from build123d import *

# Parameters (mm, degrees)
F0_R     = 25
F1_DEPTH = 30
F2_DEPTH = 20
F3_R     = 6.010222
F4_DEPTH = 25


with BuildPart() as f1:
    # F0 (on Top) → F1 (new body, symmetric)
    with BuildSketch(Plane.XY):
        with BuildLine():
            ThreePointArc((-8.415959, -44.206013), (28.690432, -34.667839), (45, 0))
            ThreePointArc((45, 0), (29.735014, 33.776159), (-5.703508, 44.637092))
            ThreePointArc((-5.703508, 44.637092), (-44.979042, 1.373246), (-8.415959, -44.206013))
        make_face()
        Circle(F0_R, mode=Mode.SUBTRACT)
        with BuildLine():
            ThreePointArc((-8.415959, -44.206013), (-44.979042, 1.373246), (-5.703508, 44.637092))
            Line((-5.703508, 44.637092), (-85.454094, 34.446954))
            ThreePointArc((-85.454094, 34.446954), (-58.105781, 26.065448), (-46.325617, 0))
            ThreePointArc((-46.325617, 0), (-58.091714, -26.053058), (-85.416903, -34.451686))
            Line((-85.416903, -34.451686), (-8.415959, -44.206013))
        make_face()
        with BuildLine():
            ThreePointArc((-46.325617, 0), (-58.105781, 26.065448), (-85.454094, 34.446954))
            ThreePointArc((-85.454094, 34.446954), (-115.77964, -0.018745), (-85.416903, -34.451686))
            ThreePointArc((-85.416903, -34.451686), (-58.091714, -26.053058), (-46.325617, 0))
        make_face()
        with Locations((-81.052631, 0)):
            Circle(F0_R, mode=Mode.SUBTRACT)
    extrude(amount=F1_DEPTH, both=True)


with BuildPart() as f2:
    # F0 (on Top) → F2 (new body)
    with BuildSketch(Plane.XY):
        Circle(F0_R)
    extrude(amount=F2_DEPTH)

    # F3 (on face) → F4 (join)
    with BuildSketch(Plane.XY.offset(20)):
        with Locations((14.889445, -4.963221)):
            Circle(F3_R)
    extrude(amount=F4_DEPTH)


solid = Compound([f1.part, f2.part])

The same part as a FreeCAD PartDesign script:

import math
import FreeCAD as App
import Part
import Sketcher

V = App.Vector

doc = App.newDocument("Part")
body = doc.addObject("PartDesign::Body", "Body")

# Sketch on XY plane
sketch1 = body.newObject("Sketcher::SketchObject", "Sketch")
sketch1.AttachmentSupport = (doc.getObject("XY_Plane"), [""])
sketch1.MapMode = "FlatFace"
sketch1.addGeometry([
    Part.ArcOfCircle(Part.Circle(V(0, 0, 0), V(0, 0, 1), 45), math.radians(-101), math.radians(0)),  # 0
    Part.ArcOfCircle(Part.Circle(V(0, 0, 0), V(0, 0, 1), 45), math.radians(0), math.radians(97)),  # 1
    Part.LineSegment(V(-6, 45, 0), V(-85, 34, 0)),  # 2
    Part.ArcOfCircle(Part.Circle(V(-81, 0, 0), V(0, 0, 1), 35), math.radians(97), math.radians(263)),  # 3
    Part.LineSegment(V(-85, -34, 0), V(-8, -44, 0)),  # 4
    Part.Circle(V(-81, 0, 0), V(0, 0, 1), 25),  # 5
    Part.Circle(V(0, 0, 0), V(0, 0, 1), 25),  # 6
], False)
sketch1.addConstraint([
    Sketcher.Constraint("Tangent", 0, 2, 1, 1),
    Sketcher.Constraint("Tangent", 1, 2, 2, 1),
    Sketcher.Constraint("Tangent", 2, 2, 3, 1),
    Sketcher.Constraint("Tangent", 3, 2, 4, 1),
    Sketcher.Constraint("Coincident", 4, 2, 0, 1),
    Sketcher.Constraint("Coincident", 0, 3, -1, 1),
    Sketcher.Constraint("Coincident", 6, 3, -1, 1),
    Sketcher.Constraint("Coincident", 5, 3, 3, 3),
    Sketcher.Constraint("Equal", 0, 1),
    Sketcher.Constraint("Equal", 5, 6),
    Sketcher.Constraint("PointOnObject", 3, 3, -1),
    Sketcher.Constraint("PointOnObject", 0, 2, -1),
    Sketcher.Constraint("Diameter", 5, 50.0),
    Sketcher.Constraint("Radius", 0, 45.0),
    Sketcher.Constraint("Radius", 3, 34.727014),
    Sketcher.Constraint("DistanceX", 3, 3, -1, 1, 81.052631),
    Sketcher.Constraint("DistanceX", 4, 2, -1, 1, 8.415959),
])
pad1 = body.newObject("PartDesign::Pad", "Pad")
pad1.Profile = sketch1
pad1.Length = 60
pad1.Midplane = True
body2 = doc.addObject("PartDesign::Body", "Body001")

# Sketch on XY plane
sketch2 = body2.newObject("Sketcher::SketchObject", "Sketch001")
sketch2.AttachmentSupport = (doc.getObject("XY_Plane001"), [""])
sketch2.MapMode = "FlatFace"
sketch2.addGeometry(Part.Circle(V(0, 0, 0), V(0, 0, 1), 25), False)
sketch2.addConstraint([
    Sketcher.Constraint("Coincident", 0, 3, -1, 1),
    Sketcher.Constraint("Diameter", 0, 50.0),
])
pad2 = body2.newObject("PartDesign::Pad", "Pad001")
pad2.Profile = sketch2
pad2.Length = 20

# Sketch on XY plane
sketch3 = body2.newObject("Sketcher::SketchObject", "Sketch002")
sketch3.AttachmentSupport = (doc.getObject("XY_Plane001"), [""])
sketch3.MapMode = "FlatFace"
sketch3.AttachmentOffset = App.Placement(V(0, 0, 20), App.Rotation())
sketch3.addGeometry(Part.Circle(V(15, -5, 0), V(0, 0, 1), 6), False)
sketch3.addConstraint([
    Sketcher.Constraint("Diameter", 0, 12.020444),
    Sketcher.Constraint("DistanceY", 0, 3, -1, 1, 4.963221),
    Sketcher.Constraint("DistanceX", -1, 1, 0, 3, 14.889445),
])
pad3 = body2.newObject("PartDesign::Pad", "Pad002")
pad3.Profile = sketch3
pad3.Length = 25

doc.recompute()
